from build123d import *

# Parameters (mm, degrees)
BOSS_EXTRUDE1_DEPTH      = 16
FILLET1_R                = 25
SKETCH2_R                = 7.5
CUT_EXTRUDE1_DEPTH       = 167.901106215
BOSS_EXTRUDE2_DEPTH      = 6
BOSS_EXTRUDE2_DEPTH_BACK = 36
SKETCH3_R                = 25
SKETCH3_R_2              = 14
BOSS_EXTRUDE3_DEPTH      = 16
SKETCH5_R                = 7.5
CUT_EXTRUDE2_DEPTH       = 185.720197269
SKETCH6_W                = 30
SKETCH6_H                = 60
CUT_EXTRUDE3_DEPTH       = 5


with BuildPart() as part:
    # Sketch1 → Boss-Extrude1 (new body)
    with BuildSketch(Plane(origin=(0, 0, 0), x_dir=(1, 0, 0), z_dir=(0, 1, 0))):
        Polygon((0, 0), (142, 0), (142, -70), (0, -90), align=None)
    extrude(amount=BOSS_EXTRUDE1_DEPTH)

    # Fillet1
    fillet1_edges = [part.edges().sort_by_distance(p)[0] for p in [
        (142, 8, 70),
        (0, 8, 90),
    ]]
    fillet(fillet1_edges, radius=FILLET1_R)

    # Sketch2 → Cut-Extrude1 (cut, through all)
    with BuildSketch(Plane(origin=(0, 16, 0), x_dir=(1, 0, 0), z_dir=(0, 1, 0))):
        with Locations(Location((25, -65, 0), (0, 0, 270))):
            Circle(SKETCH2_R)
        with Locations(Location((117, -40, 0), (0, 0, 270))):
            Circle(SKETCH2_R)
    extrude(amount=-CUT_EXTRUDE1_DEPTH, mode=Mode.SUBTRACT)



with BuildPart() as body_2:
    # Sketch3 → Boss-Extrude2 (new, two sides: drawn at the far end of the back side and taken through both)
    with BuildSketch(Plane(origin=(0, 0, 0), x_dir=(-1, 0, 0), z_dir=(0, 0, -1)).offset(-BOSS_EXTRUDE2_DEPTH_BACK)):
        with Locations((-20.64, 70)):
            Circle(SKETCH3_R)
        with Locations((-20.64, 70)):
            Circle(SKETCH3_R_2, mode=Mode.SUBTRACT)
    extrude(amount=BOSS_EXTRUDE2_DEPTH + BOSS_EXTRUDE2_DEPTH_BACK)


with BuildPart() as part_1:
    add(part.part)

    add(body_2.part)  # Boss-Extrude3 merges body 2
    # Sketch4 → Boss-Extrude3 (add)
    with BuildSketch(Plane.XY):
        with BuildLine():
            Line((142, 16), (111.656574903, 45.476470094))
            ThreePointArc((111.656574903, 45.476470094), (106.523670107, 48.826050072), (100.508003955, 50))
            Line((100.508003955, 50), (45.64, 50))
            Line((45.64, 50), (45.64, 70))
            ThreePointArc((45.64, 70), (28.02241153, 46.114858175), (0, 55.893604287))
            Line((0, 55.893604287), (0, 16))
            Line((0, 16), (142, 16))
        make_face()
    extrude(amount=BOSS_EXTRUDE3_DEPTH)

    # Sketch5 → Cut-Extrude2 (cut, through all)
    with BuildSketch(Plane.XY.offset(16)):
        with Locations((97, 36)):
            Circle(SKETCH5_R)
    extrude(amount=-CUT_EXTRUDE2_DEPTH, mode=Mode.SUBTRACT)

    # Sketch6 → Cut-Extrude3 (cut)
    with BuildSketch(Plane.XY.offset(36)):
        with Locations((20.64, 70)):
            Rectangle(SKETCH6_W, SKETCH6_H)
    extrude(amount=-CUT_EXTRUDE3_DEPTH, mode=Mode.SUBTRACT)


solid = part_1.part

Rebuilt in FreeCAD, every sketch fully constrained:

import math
import FreeCAD as App
import Part
import Sketcher
from FreeCAD import Vector
Q = App.Units.Quantity


def edges_at(feature, points):
    """Names of the edges that pass closest to the given points."""
    edges = feature.Shape.Edges
    near = lambda p: min(range(len(edges)), key=lambda i: edges[i].distToShape(Part.Vertex(*p))[0])
    return sorted({f"Edge{near(p) + 1}" for p in points})


def add_polygon(sketch, points):
    """Adds a closed chain of lines whose ends are joined by coincident constraints."""
    first, n = sketch.GeometryCount, len(points)
    for a, b in zip(points, points[1:] + points[:1]):
        sketch.addGeometry(Part.LineSegment(App.Vector(*a, 0), App.Vector(*b, 0)), False)
    for i in range(n):
        sketch.addConstraint(Sketcher.Constraint("Coincident", first + i, 2, first + (i + 1) % n, 1))

doc = App.newDocument("Part")
body = doc.addObject("PartDesign::Body", "Body")

sketch1 = doc.addObject("Sketcher::SketchObject", "Sketch")
body.addObject(sketch1)
sketch1.AttachmentSupport = (doc.XZ_Plane, [""])
sketch1.MapMode = "FlatFace"
add_polygon(sketch1, [(142, 0), (0, 0), (0, 90), (142, 70)])
sketch1.addConstraint([
    Sketcher.Constraint("Horizontal", 0),
    Sketcher.Constraint("Vertical", 1),
    Sketcher.Constraint("Vertical", 3),
    Sketcher.Constraint("Coincident", 0, 2, -1, 1),
    Sketcher.Constraint("DistanceX", 0, 2, 0, 1, Q("142 mm")),
    Sketcher.Constraint("DistanceY", 1, 1, 1, 2, Q("90 mm")),
    Sketcher.Constraint("DistanceY", 3, 2, 3, 1, Q("70 mm")),
])
pad1 = doc.addObject("PartDesign::Pad", "Pad")
body.addObject(pad1)
pad1.Profile = sketch1
pad1.Length = 16
pad1.Reversed = True
doc.recompute()

fillet = doc.addObject("PartDesign::Fillet", "Fillet")
body.addObject(fillet)
fillet.Base = (pad1, edges_at(pad1, [(142, 8, 70), (0, 8, 90)]))
fillet.Radius = 25

sketch2 = doc.addObject("Sketcher::SketchObject", "Sketch001")
body.addObject(sketch2)
sketch2.AttachmentSupport = (doc.XZ_Plane, [""])
sketch2.MapMode = "FlatFace"
sketch2.AttachmentOffset = App.Placement(Vector(0, 0, -16), App.Rotation())
sketch2.addGeometry([
    Part.Circle(Vector(25, 65, 0), Vector(0, 0, 1), 7.5),
    Part.Circle(Vector(117, 40, 0), Vector(0, 0, 1), 7.5),
], False)
sketch2.addConstraint([
    Sketcher.Constraint("Equal", 0, 1),
    Sketcher.Constraint("Diameter", 0, Q("15 mm")),
    Sketcher.Constraint("DistanceX", -1, 1, 0, 3, Q("25 mm")),
    Sketcher.Constraint("DistanceY", -1, 1, 0, 3, Q("65 mm")),
    Sketcher.Constraint("DistanceX", -1, 1, 1, 3, Q("117 mm")),
    Sketcher.Constraint("DistanceY", -1, 1, 1, 3, Q("40 mm")),
])
pocket1 = doc.addObject("PartDesign::Pocket", "Pocket")
body.addObject(pocket1)
pocket1.Profile = sketch2
pocket1.Type = "ThroughAll"
pocket1.Reversed = True
body2 = doc.addObject("PartDesign::Body", "Body001")

sketch3 = doc.addObject("Sketcher::SketchObject", "Sketch002")
body2.addObject(sketch3)
sketch3.AttachmentSupport = (doc.getObject("XY_Plane001"), [""])
sketch3.MapMode = "FlatFace"
sketch3.addGeometry([
    Part.Circle(Vector(20.64, 70, 0), Vector(0, 0, 1), 25),
    Part.Circle(Vector(20.64, 70, 0), Vector(0, 0, 1), 14),
], False)
sketch3.addConstraint([
    Sketcher.Constraint("Coincident", 1, 3, 0, 3),
    Sketcher.Constraint("Diameter", 0, Q("50 mm")),
    Sketcher.Constraint("Diameter", 1, Q("28 mm")),
    Sketcher.Constraint("DistanceY", -1, 1, 0, 3, Q("70 mm")),
    Sketcher.Constraint("DistanceX", -1, 1, 0, 3, Q("20.64 mm")),
])
pad2 = doc.addObject("PartDesign::Pad", "Pad001")
body2.addObject(pad2)
pad2.Profile = sketch3
pad2.Type = "TwoLengths"
pad2.Length = 6
pad2.Length2 = 36
pad2.Reversed = True
body.AllowCompound = True
doc.recompute()

boolean = doc.addObject("PartDesign::Boolean", "Boolean")
body.addObject(boolean)
boolean.Type = "Fuse"
boolean.addObjects([body2])

sketch4 = doc.addObject("Sketcher::SketchObject", "Sketch003")
body.addObject(sketch4)
sketch4.AttachmentSupport = (doc.XY_Plane, [""])
sketch4.MapMode = "FlatFace"
sketch4.addGeometry([
    Part.LineSegment(Vector(142, 16, 0), Vector(111.656575, 45.47647, 0)),
    Part.ArcOfCircle(Part.Circle(Vector(100.508004, 34, 0), Vector(0, 0, 1), 16), math.radians(45.830315), math.radians(90)),
    Part.LineSegment(Vector(100.508004, 50, 0), Vector(45.64, 50, 0)),
    Part.LineSegment(Vector(45.64, 50, 0), Vector(45.64, 70, 0)),
    Part.ArcOfCircle(Part.Circle(Vector(20.64, 70, 0), Vector(0, 0, 1), 25), math.radians(-145.649369), math.radians(0)),
    Part.LineSegment(Vector(0, 55.893604, 0), Vector(0, 16, 0)),
    Part.LineSegment(Vector(0, 16, 0), Vector(142, 16, 0)),
], False)
sketch4.addConstraint([
    Sketcher.Constraint("Tangent", 0, 2, 1, 1),
    Sketcher.Constraint("Tangent", 1, 2, 2, 1),
    Sketcher.Constraint("Coincident", 2, 2, 3, 1),
    Sketcher.Constraint("Tangent", 3, 2, 4, 2),
    Sketcher.Constraint("Coincident", 4, 1, 5, 1),
    Sketcher.Constraint("Coincident", 5, 2, 6, 1),
    Sketcher.Constraint("Coincident", 6, 2, 0, 1),
    Sketcher.Constraint("Horizontal", 2),
    Sketcher.Constraint("Vertical", 3),
    Sketcher.Constraint("Vertical", 5),
    Sketcher.Constraint("Horizontal", 6),
    Sketcher.Constraint("PointOnObject", 4, 1, -2),
    Sketcher.Constraint("Radius", 1, Q("16 mm")),
    Sketcher.Constraint("Radius", 4, Q("25 mm")),
    Sketcher.Constraint("DistanceX", 6, 1, 6, 2, Q("142 mm")),
    Sketcher.Constraint("DistanceY", 3, 1, 3, 2, Q("20 mm")),
    Sketcher.Constraint("DistanceY", -1, 1, 1, 3, Q("34 mm")),
    Sketcher.Constraint("DistanceY", -1, 1, 5, 2, Q("16 mm")),
    Sketcher.Constraint("DistanceX", -1, 1, 4, 3, Q("20.64 mm")),
    Sketcher.Constraint("DistanceX", 2, 2, 2, 1, Q("54.868004 mm")),
])
pad3 = doc.addObject("PartDesign::Pad", "Pad002")
body.addObject(pad3)
pad3.Profile = sketch4
pad3.Length = 16

sketch5 = doc.addObject("Sketcher::SketchObject", "Sketch004")
body.addObject(sketch5)
sketch5.AttachmentSupport = (doc.XY_Plane, [""])
sketch5.MapMode = "FlatFace"
sketch5.AttachmentOffset = App.Placement(Vector(0, 0, 16), App.Rotation())
sketch5.addGeometry(Part.Circle(Vector(97, 36, 0), Vector(0, 0, 1), 7.5), False)
sketch5.addConstraint([
    Sketcher.Constraint("Diameter", 0, Q("15 mm")),
    Sketcher.Constraint("DistanceX", -1, 1, 0, 3, Q("97 mm")),
    Sketcher.Constraint("DistanceY", -1, 1, 0, 3, Q("36 mm")),
])
pocket2 = doc.addObject("PartDesign::Pocket", "Pocket001")
body.addObject(pocket2)
pocket2.Profile = sketch5
pocket2.Type = "ThroughAll"

sketch6 = doc.addObject("Sketcher::SketchObject", "Sketch005")
body.addObject(sketch6)
sketch6.AttachmentSupport = (doc.XY_Plane, [""])
sketch6.MapMode = "FlatFace"
sketch6.AttachmentOffset = App.Placement(Vector(0, 0, 36), App.Rotation())
add_polygon(sketch6, [(5.64, 100), (5.64, 40), (35.64, 40), (35.64, 100)])
sketch6.addConstraint([
    Sketcher.Constraint("Vertical", 0),
    Sketcher.Constraint("Horizontal", 1),
    Sketcher.Constraint("Vertical", 2),
    Sketcher.Constraint("Horizontal", 3),
    Sketcher.Constraint("DistanceX", 1, 1, 1, 2, Q("30 mm")),
    Sketcher.Constraint("DistanceY", 0, 2, 0, 1, Q("60 mm")),
    Sketcher.Constraint("DistanceY", -1, 1, 0, 2, Q("40 mm")),
    Sketcher.Constraint("DistanceX", -1, 1, 0, 2, Q("5.64 mm")),
])
pocket3 = doc.addObject("PartDesign::Pocket", "Pocket002")
body.addObject(pocket3)
pocket3.Profile = sketch6
pocket3.Length = 5

doc.recompute()
